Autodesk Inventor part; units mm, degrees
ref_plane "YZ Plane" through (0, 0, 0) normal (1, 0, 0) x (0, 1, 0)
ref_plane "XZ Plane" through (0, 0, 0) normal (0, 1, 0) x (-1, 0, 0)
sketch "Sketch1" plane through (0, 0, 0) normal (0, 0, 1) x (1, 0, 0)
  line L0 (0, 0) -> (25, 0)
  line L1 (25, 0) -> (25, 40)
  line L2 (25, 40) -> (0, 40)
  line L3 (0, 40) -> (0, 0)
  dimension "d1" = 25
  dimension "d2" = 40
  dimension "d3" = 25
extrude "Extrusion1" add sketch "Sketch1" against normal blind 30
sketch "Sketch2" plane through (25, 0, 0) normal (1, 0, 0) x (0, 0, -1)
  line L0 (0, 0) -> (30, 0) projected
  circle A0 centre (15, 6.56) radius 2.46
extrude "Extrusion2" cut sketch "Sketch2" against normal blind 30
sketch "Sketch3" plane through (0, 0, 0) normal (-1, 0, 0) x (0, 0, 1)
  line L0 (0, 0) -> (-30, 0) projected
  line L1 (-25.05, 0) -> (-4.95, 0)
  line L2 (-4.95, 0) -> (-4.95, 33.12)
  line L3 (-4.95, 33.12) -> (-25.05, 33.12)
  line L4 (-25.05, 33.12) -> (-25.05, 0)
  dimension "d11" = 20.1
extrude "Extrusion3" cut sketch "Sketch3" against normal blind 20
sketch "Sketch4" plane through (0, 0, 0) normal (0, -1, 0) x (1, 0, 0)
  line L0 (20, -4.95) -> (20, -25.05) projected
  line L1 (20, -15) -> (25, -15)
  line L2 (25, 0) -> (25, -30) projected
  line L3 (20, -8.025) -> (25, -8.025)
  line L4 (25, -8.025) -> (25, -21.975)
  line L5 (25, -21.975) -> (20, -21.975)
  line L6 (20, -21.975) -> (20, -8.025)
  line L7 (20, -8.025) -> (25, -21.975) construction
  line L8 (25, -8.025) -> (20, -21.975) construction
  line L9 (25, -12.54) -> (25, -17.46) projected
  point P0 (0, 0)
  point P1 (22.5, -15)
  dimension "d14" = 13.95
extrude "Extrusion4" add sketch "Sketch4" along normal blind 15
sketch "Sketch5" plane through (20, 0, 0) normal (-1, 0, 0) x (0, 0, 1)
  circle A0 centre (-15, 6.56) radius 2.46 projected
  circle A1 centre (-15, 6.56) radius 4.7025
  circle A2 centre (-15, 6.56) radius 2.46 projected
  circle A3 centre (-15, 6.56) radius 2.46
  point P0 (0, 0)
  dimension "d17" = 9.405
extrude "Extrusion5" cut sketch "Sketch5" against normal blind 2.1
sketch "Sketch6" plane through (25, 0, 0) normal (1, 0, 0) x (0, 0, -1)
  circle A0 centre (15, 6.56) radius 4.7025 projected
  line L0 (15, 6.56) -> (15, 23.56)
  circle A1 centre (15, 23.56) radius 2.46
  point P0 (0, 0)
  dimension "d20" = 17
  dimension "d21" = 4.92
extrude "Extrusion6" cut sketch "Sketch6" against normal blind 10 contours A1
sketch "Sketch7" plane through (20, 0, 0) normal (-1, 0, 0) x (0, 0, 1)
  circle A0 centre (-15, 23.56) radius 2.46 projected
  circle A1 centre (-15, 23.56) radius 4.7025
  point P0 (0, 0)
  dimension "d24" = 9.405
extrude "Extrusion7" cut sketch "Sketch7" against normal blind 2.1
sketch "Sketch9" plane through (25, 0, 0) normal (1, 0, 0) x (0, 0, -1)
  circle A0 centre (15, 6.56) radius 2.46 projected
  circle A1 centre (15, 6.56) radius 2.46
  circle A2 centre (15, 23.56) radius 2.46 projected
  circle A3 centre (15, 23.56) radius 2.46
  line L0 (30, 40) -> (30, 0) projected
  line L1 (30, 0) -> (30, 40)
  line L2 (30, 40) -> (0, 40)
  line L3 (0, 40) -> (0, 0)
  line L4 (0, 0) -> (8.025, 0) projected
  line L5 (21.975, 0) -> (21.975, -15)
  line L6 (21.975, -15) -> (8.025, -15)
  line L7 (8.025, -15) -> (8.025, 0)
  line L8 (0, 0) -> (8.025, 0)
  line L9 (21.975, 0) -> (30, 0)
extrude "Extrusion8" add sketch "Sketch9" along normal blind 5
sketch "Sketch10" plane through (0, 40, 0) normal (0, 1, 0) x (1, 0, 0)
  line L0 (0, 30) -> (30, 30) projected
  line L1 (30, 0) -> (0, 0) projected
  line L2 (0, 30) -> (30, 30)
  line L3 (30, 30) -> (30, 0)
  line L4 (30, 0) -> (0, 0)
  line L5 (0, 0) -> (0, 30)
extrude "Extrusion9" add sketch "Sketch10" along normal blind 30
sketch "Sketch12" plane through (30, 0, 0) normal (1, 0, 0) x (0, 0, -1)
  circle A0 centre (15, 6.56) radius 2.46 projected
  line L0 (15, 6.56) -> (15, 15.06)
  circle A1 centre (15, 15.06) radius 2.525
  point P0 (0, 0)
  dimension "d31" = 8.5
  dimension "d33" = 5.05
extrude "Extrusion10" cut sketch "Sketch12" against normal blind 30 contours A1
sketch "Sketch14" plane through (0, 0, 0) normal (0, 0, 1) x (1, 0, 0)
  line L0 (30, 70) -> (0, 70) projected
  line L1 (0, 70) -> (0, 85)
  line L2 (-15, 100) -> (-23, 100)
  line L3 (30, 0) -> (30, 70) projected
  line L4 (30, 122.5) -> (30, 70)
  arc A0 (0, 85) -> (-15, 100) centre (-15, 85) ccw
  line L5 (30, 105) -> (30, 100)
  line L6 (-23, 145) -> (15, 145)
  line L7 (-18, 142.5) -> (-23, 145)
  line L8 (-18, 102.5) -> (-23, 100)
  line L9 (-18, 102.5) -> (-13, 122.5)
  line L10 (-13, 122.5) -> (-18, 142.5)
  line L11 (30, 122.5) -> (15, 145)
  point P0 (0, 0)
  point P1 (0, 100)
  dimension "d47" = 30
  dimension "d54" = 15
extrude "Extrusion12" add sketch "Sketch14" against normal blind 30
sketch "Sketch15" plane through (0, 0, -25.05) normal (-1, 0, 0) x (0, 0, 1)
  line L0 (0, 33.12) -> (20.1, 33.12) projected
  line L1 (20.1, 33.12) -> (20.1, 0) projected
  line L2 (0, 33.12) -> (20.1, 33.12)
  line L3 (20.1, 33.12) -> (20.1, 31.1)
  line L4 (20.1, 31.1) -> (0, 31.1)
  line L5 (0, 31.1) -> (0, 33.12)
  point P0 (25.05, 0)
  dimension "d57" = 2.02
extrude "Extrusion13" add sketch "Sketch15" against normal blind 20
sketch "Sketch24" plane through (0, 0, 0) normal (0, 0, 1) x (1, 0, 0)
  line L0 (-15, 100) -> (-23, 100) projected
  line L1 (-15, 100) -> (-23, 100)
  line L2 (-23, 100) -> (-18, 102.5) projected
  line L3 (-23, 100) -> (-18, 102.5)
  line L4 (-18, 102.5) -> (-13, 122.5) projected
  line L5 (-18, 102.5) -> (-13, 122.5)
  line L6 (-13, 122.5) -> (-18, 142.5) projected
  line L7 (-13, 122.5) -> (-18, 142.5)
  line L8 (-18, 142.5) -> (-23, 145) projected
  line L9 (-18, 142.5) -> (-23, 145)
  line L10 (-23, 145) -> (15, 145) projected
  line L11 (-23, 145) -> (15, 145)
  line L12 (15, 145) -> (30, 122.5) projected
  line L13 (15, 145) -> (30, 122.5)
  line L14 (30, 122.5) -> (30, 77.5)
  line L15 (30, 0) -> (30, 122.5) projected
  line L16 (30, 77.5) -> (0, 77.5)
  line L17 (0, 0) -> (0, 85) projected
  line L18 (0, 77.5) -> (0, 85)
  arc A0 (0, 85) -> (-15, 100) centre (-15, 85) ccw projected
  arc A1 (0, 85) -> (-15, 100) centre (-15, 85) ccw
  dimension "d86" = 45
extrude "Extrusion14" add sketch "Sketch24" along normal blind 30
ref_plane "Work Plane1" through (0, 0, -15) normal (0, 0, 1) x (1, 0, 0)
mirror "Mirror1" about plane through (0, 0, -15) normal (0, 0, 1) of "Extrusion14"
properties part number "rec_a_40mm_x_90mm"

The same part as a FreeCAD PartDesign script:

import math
import FreeCAD as App
import Part
import Sketcher
from FreeCAD import Vector

doc = App.newDocument("Part")
body = doc.addObject("PartDesign::Body", "Body")

# Sketch on XY plane
sketch1 = body.newObject("Sketcher::SketchObject", "Sketch")
sketch1.AttachmentSupport = (doc.getObject("XY_Plane"), [""])
sketch1.MapMode = "FlatFace"
sketch1.addGeometry(Part.LineSegment(Vector(0, 40, 0), Vector(0, 0, 0)), False)
sketch1.addGeometry(Part.LineSegment(Vector(0, 0, 0), Vector(25, 0, 0)), False)
sketch1.addGeometry(Part.LineSegment(Vector(25, 0, 0), Vector(25, 40, 0)), False)
sketch1.addGeometry(Part.LineSegment(Vector(25, 40, 0), Vector(0, 40, 0)), False)
sketch1.addConstraint(Sketcher.Constraint("Coincident", 0, 2, 1, 1))
sketch1.addConstraint(Sketcher.Constraint("Coincident", 1, 2, 2, 1))
sketch1.addConstraint(Sketcher.Constraint("Coincident", 2, 2, 3, 1))
sketch1.addConstraint(Sketcher.Constraint("Coincident", 3, 2, 0, 1))
sketch1.addConstraint(Sketcher.Constraint("Vertical", 0))
sketch1.addConstraint(Sketcher.Constraint("Horizontal", 1))
sketch1.addConstraint(Sketcher.Constraint("Vertical", 2))
sketch1.addConstraint(Sketcher.Constraint("Horizontal", 3))
sketch1.addConstraint(Sketcher.Constraint("Coincident", 0, 2, -1, 1))
sketch1.addConstraint(Sketcher.Constraint("DistanceX", 1, 1, 1, 2, 25.0))
sketch1.addConstraint(Sketcher.Constraint("DistanceY", 0, 2, 0, 1, 40.0))
pad1 = body.newObject("PartDesign::Pad", "Pad")
pad1.Profile = sketch1
pad1.Length = 30
pad1.Reversed = True

# Sketch on YZ plane
sketch2 = body.newObject("Sketcher::SketchObject", "Sketch001")
sketch2.AttachmentSupport = (doc.getObject("YZ_Plane"), [""])
sketch2.MapMode = "FlatFace"
sketch2.AttachmentOffset = App.Placement(Vector(0, 0, 25), App.Rotation())
sketch2.addGeometry(Part.Circle(Vector(6.6, -15, 0), Vector(0, 0, 1), 2.5), False)
sketch2.addConstraint(Sketcher.Constraint("Diameter", 0, 4.92))
sketch2.addConstraint(Sketcher.Constraint("DistanceY", 0, 3, -1, 1, 15.0))
sketch2.addConstraint(Sketcher.Constraint("DistanceX", -1, 1, 0, 3, 6.56))
pocket1 = body.newObject("PartDesign::Pocket", "Pocket")
pocket1.Profile = sketch2
pocket1.Length = 30

# Sketch on YZ plane
sketch3 = body.newObject("Sketcher::SketchObject", "Sketch002")
sketch3.AttachmentSupport = (doc.getObject("YZ_Plane"), [""])
sketch3.MapMode = "FlatFace"
sketch3.addGeometry(Part.LineSegment(Vector(0, -25, 0), Vector(0, -5, 0)), False)
sketch3.addGeometry(Part.LineSegment(Vector(0, -5, 0), Vector(33, -5, 0)), False)
sketch3.addGeometry(Part.LineSegment(Vector(33, -5, 0), Vector(33, -25, 0)), False)
sketch3.addGeometry(Part.LineSegment(Vector(33, -25, 0), Vector(0, -25, 0)), False)
sketch3.addConstraint(Sketcher.Constraint("Coincident", 0, 2, 1, 1))
sketch3.addConstraint(Sketcher.Constraint("Coincident", 1, 2, 2, 1))
sketch3.addConstraint(Sketcher.Constraint("Coincident", 2, 2, 3, 1))
sketch3.addConstraint(Sketcher.Constraint("Coincident", 3, 2, 0, 1))
sketch3.addConstraint(Sketcher.Constraint("Vertical", 0))
sketch3.addConstraint(Sketcher.Constraint("Horizontal", 1))
sketch3.addConstraint(Sketcher.Constraint("Vertical", 2))
sketch3.addConstraint(Sketcher.Constraint("Horizontal", 3))
sketch3.addConstraint(Sketcher.Constraint("PointOnObject", 0, 2, -2))
sketch3.addConstraint(Sketcher.Constraint("DistanceY", 0, 1, 0, 2, 20.1))
sketch3.addConstraint(Sketcher.Constraint("DistanceX", 1, 1, 1, 2, 33.12))
sketch3.addConstraint(Sketcher.Constraint("DistanceY", 0, 2, -1, 1, 4.95))
pocket2 = body.newObject("PartDesign::Pocket", "Pocket001")
pocket2.Profile = sketch3
pocket2.Length = 20
pocket2.Reversed = True

# Sketch on XZ plane
sketch4 = body.newObject("Sketcher::SketchObject", "Sketch003")
sketch4.AttachmentSupport = (doc.getObject("XZ_Plane"), [""])
sketch4.MapMode = "FlatFace"
sketch4.addGeometry(Part.LineSegment(Vector(25, -8, 0), Vector(20, -8, 0)), False)
sketch4.addGeometry(Part.LineSegment(Vector(20, -8, 0), Vector(20, -22, 0)), False)
sketch4.addGeometry(Part.LineSegment(Vector(20, -22, 0), Vector(25, -22, 0)), False)
sketch4.addGeometry(Part.LineSegment(Vector(25, -22, 0), Vector(25, -8, 0)), False)
sketch4.addConstraint(Sketcher.Constraint("Coincident", 0, 2, 1, 1))
sketch4.addConstraint(Sketcher.Constraint("Coincident", 1, 2, 2, 1))
sketch4.addConstraint(Sketcher.Constraint("Coincident", 2, 2, 3, 1))
sketch4.addConstraint(Sketcher.Constraint("Coincident", 3, 2, 0, 1))
sketch4.addConstraint(Sketcher.Constraint("Horizontal", 0))
sketch4.addConstraint(Sketcher.Constraint("Vertical", 1))
sketch4.addConstraint(Sketcher.Constraint("Horizontal", 2))
sketch4.addConstraint(Sketcher.Constraint("Vertical", 3))
sketch4.addConstraint(Sketcher.Constraint("DistanceY", 1, 2, 1, 1, 13.95))
sketch4.addConstraint(Sketcher.Constraint("DistanceX", 0, 2, 0, 1, 5.0))
sketch4.addConstraint(Sketcher.Constraint("DistanceX", -1, 1, 0, 2, 20.0))
sketch4.addConstraint(Sketcher.Constraint("DistanceY", 0, 2, -1, 1, 8.025))
pad2 = body.newObject("PartDesign::Pad", "Pad001")
pad2.Profile = sketch4
pad2.Length = 15

# Sketch on YZ plane
sketch5 = body.newObject("Sketcher::SketchObject", "Sketch004")
sketch5.AttachmentSupport = (doc.getObject("YZ_Plane"), [""])
sketch5.MapMode = "FlatFace"
sketch5.AttachmentOffset = App.Placement(Vector(0, 0, 20), App.Rotation())
sketch5.addGeometry(Part.Circle(Vector(6.6, -15, 0), Vector(0, 0, 1), 4.7), False)
sketch5.addGeometry(Part.Circle(Vector(6.6, -15, 0), Vector(0, 0, 1), 2.5), False)
sketch5.addConstraint(Sketcher.Constraint("Coincident", 1, 3, 0, 3))
sketch5.addConstraint(Sketcher.Constraint("Diameter", 0, 9.405))
sketch5.addConstraint(Sketcher.Constraint("Diameter", 1, 4.92))
sketch5.addConstraint(Sketcher.Constraint("DistanceY", 0, 3, -1, 1, 15.0))
sketch5.addConstraint(Sketcher.Constraint("DistanceX", -1, 1, 0, 3, 6.56))
pocket3 = body.newObject("PartDesign::Pocket", "Pocket002")
pocket3.Profile = sketch5
pocket3.Length = 2.1
pocket3.Reversed = True

# Sketch on YZ plane
sketch6 = body.newObject("Sketcher::SketchObject", "Sketch005")
sketch6.AttachmentSupport = (doc.getObject("YZ_Plane"), [""])
sketch6.MapMode = "FlatFace"
sketch6.AttachmentOffset = App.Placement(Vector(0, 0, 25), App.Rotation())
sketch6.addGeometry(Part.Circle(Vector(23.6, -15, 0), Vector(0, 0, 1), 2.5), False)
sketch6.addConstraint(Sketcher.Constraint("Diameter", 0, 4.92))
sketch6.addConstraint(Sketcher.Constraint("DistanceY", 0, 3, -1, 1, 15.0))
sketch6.addConstraint(Sketcher.Constraint("DistanceX", -1, 1, 0, 3, 23.56))
pocket4 = body.newObject("PartDesign::Pocket", "Pocket003")
pocket4.Profile = sketch6
pocket4.Length = 10

# Sketch on YZ plane
sketch7 = body.newObject("Sketcher::SketchObject", "Sketch006")
sketch7.AttachmentSupport = (doc.getObject("YZ_Plane"), [""])
sketch7.MapMode = "FlatFace"
sketch7.AttachmentOffset = App.Placement(Vector(0, 0, 20), App.Rotation())
sketch7.addGeometry(Part.Circle(Vector(23.6, -15, 0), Vector(0, 0, 1), 4.7), False)
sketch7.addGeometry(Part.Circle(Vector(23.6, -15, 0), Vector(0, 0, 1), 2.5), False)
sketch7.addConstraint(Sketcher.Constraint("Coincident", 1, 3, 0, 3))
sketch7.addConstraint(Sketcher.Constraint("Diameter", 0, 9.405))
sketch7.addConstraint(Sketcher.Constraint("Diameter", 1, 4.92))
sketch7.addConstraint(Sketcher.Constraint("DistanceY", 0, 3, -1, 1, 15.0))
sketch7.addConstraint(Sketcher.Constraint("DistanceX", -1, 1, 0, 3, 23.56))
pocket5 = body.newObject("PartDesign::Pocket", "Pocket004")
pocket5.Profile = sketch7
pocket5.Length = 2.1
pocket5.Reversed = True

# Sketch on YZ plane
sketch8 = body.newObject("Sketcher::SketchObject", "Sketch007")
sketch8.AttachmentSupport = (doc.getObject("YZ_Plane"), [""])
sketch8.MapMode = "FlatFace"
sketch8.AttachmentOffset = App.Placement(Vector(0, 0, 25), App.Rotation())
sketch8.addGeometry(Part.LineSegment(Vector(0, -30, 0), Vector(40, -30, 0)), False)
sketch8.addGeometry(Part.LineSegment(Vector(40, -30, 0), Vector(40, 0, 0)), False)
sketch8.addGeometry(Part.LineSegment(Vector(40, 0, 0), Vector(0, 0, 0)), False)
sketch8.addGeometry(Part.LineSegment(Vector(0, 0, 0), Vector(0, -8, 0)), False)
sketch8.addGeometry(Part.LineSegment(Vector(0, -8, 0), Vector(-15, -8, 0)), False)
sketch8.addGeometry(Part.LineSegment(Vector(-15, -8, 0), Vector(-15, -22, 0)), False)
sketch8.addGeometry(Part.LineSegment(Vector(-15, -22, 0), Vector(0, -22, 0)), False)
sketch8.addGeometry(Part.LineSegment(Vector(0, -22, 0), Vector(0, -30, 0)), False)
sketch8.addGeometry(Part.Circle(Vector(6.6, -15, 0), Vector(0, 0, 1), 2.5), False)
sketch8.addGeometry(Part.Circle(Vector(23.6, -15, 0), Vector(0, 0, 1), 2.5), False)
sketch8.addConstraint(Sketcher.Constraint("Coincident", 0, 2, 1, 1))
sketch8.addConstraint(Sketcher.Constraint("Coincident", 1, 2, 2, 1))
sketch8.addConstraint(Sketcher.Constraint("Coincident", 2, 2, 3, 1))
sketch8.addConstraint(Sketcher.Constraint("Coincident", 3, 2, 4, 1))
sketch8.addConstraint(Sketcher.Constraint("Coincident", 4, 2, 5, 1))
sketch8.addConstraint(Sketcher.Constraint("Coincident", 5, 2, 6, 1))
sketch8.addConstraint(Sketcher.Constraint("Coincident", 6, 2, 7, 1))
sketch8.addConstraint(Sketcher.Constraint("Coincident", 7, 2, 0, 1))
sketch8.addConstraint(Sketcher.Constraint("Horizontal", 0))
sketch8.addConstraint(Sketcher.Constraint("Vertical", 1))
sketch8.addConstraint(Sketcher.Constraint("Horizontal", 2))
sketch8.addConstraint(Sketcher.Constraint("Vertical", 3))
sketch8.addConstraint(Sketcher.Constraint("Horizontal", 4))
sketch8.addConstraint(Sketcher.Constraint("Vertical", 5))
sketch8.addConstraint(Sketcher.Constraint("Horizontal", 6))
sketch8.addConstraint(Sketcher.Constraint("Vertical", 7))
sketch8.addConstraint(Sketcher.Constraint("Coincident", 2, 2, -1, 1))
sketch8.addConstraint(Sketcher.Constraint("Equal", 8, 9))
sketch8.addConstraint(Sketcher.Constraint("PointOnObject", 6, 2, -2))
sketch8.addConstraint(Sketcher.Constraint("Horizontal", 8, 3, 9, 3))
sketch8.addConstraint(Sketcher.Constraint("Equal", 3, 7))
sketch8.addConstraint(Sketcher.Constraint("Diameter", 8, 4.92))
sketch8.addConstraint(Sketcher.Constraint("DistanceX", 0, 1, 0, 2, 40.0))
sketch8.addConstraint(Sketcher.Constraint("DistanceX", 4, 2, 4, 1, 15.0))
sketch8.addConstraint(Sketcher.Constraint("DistanceY", 1, 1, 1, 2, 30.0))
sketch8.addConstraint(Sketcher.Constraint("DistanceY", 8, 3, -1, 1, 15.0))
sketch8.addConstraint(Sketcher.Constraint("DistanceX", 8, 3, 9, 3, 17.0))
sketch8.addConstraint(Sketcher.Constraint("DistanceY", 5, 2, 5, 1, 13.95))
sketch8.addConstraint(Sketcher.Constraint("DistanceX", -1, 1, 8, 3, 6.56))
pad3 = body.newObject("PartDesign::Pad", "Pad002")
pad3.Profile = sketch8
pad3.Length = 5

# Sketch on XZ plane
sketch9 = body.newObject("Sketcher::SketchObject", "Sketch008")
sketch9.AttachmentSupport = (doc.getObject("XZ_Plane"), [""])
sketch9.MapMode = "FlatFace"
sketch9.AttachmentOffset = App.Placement(Vector(0, 0, -40), App.Rotation())
sketch9.addGeometry(Part.LineSegment(Vector(30, -30, 0), Vector(0, -30, 0)), False)
sketch9.addGeometry(Part.LineSegment(Vector(0, -30, 0), Vector(0, 0, 0)), False)
sketch9.addGeometry(Part.LineSegment(Vector(0, 0, 0), Vector(30, 0, 0)), False)
sketch9.addGeometry(Part.LineSegment(Vector(30, 0, 0), Vector(30, -30, 0)), False)
sketch9.addConstraint(Sketcher.Constraint("Coincident", 0, 2, 1, 1))
sketch9.addConstraint(Sketcher.Constraint("Coincident", 1, 2, 2, 1))
sketch9.addConstraint(Sketcher.Constraint("Coincident", 2, 2, 3, 1))
sketch9.addConstraint(Sketcher.Constraint("Coincident", 3, 2, 0, 1))
sketch9.addConstraint(Sketcher.Constraint("Horizontal", 0))
sketch9.addConstraint(Sketcher.Constraint("Vertical", 1))
sketch9.addConstraint(Sketcher.Constraint("Horizontal", 2))
sketch9.addConstraint(Sketcher.Constraint("Vertical", 3))
sketch9.addConstraint(Sketcher.Constraint("Coincident", 1, 2, -1, 1))
sketch9.addConstraint(Sketcher.Constraint("Equal", 2, 1))
sketch9.addConstraint(Sketcher.Constraint("DistanceX", 0, 2, 0, 1, 30.0))
pad4 = body.newObject("PartDesign::Pad", "Pad003")
pad4.Profile = sketch9
pad4.Length = 30
pad4.Reversed = True

# Sketch on YZ plane
sketch10 = body.newObject("Sketcher::SketchObject", "Sketch009")
sketch10.AttachmentSupport = (doc.getObject("YZ_Plane"), [""])
sketch10.MapMode = "FlatFace"
sketch10.AttachmentOffset = App.Placement(Vector(0, 0, 30), App.Rotation())
sketch10.addGeometry(Part.Circle(Vector(15.1, -15, 0), Vector(0, 0, 1), 2.5), False)
sketch10.addConstraint(Sketcher.Constraint("Diameter", 0, 5.05))
sketch10.addConstraint(Sketcher.Constraint("DistanceY", 0, 3, -1, 1, 15.0))
sketch10.addConstraint(Sketcher.Constraint("DistanceX", -1, 1, 0, 3, 15.06))
pocket6 = body.newObject("PartDesign::Pocket", "Pocket005")
pocket6.Profile = sketch10
pocket6.Length = 30

# Sketch on XY plane
sketch11 = body.newObject("Sketcher::SketchObject", "Sketch010")
sketch11.AttachmentSupport = (doc.getObject("XY_Plane"), [""])
sketch11.MapMode = "FlatFace"
sketch11.addGeometry(Part.LineSegment(Vector(0, 70, 0), Vector(30, 70, 0)), False)
sketch11.addGeometry(Part.LineSegment(Vector(30, 70, 0), Vector(30, 122, 0)), False)
sketch11.addGeometry(Part.LineSegment(Vector(30, 122, 0), Vector(15, 145, 0)), False)
sketch11.addGeometry(Part.LineSegment(Vector(15, 145, 0), Vector(-23, 145, 0)), False)
sketch11.addGeometry(Part.LineSegment(Vector(-23, 145, 0), Vector(-18, 142, 0)), False)
sketch11.addGeometry(Part.LineSegment(Vector(-18, 142, 0), Vector(-13, 122, 0)), False)
sketch11.addGeometry(Part.LineSegment(Vector(-13, 122, 0), Vector(-18, 102, 0)), False)
sketch11.addGeometry(Part.LineSegment(Vector(-18, 102, 0), Vector(-23, 100, 0)), False)
sketch11.addGeometry(Part.LineSegment(Vector(-23, 100, 0), Vector(-15, 100, 0)), False)
sketch11.addGeometry(Part.ArcOfCircle(Part.Circle(Vector(-15, 85, 0), Vector(0, 0, 1), 15), math.radians(0), math.radians(90)), False)
sketch11.addGeometry(Part.LineSegment(Vector(0, 85, 0), Vector(0, 70, 0)), False)
sketch11.addConstraint(Sketcher.Constraint("Coincident", 0, 2, 1, 1))
sketch11.addConstraint(Sketcher.Constraint("Coincident", 1, 2, 2, 1))
sketch11.addConstraint(Sketcher.Constraint("Coincident", 2, 2, 3, 1))
sketch11.addConstraint(Sketcher.Constraint("Coincident", 3, 2, 4, 1))
sketch11.addConstraint(Sketcher.Constraint("Coincident", 4, 2, 5, 1))
sketch11.addConstraint(Sketcher.Constraint("Coincident", 5, 2, 6, 1))
sketch11.addConstraint(Sketcher.Constraint("Coincident", 6, 2, 7, 1))
sketch11.addConstraint(Sketcher.Constraint("Coincident", 7, 2, 8, 1))
sketch11.addConstraint(Sketcher.Constraint("Tangent", 8, 2, 9, 2))
sketch11.addConstraint(Sketcher.Constraint("Tangent", 9, 1, 10, 1))
sketch11.addConstraint(Sketcher.Constraint("Coincident", 10, 2, 0, 1))
sketch11.addConstraint(Sketcher.Constraint("Horizontal", 0))
sketch11.addConstraint(Sketcher.Constraint("Vertical", 1))
sketch11.addConstraint(Sketcher.Constraint("Horizontal", 3))
sketch11.addConstraint(Sketcher.Constraint("Horizontal", 8))
sketch11.addConstraint(Sketcher.Constraint("Vertical", 10))
sketch11.addConstraint(Sketcher.Constraint("PointOnObject", 9, 1, -2))
sketch11.addConstraint(Sketcher.Constraint("Horizontal", 1, 2, 5, 2))
sketch11.addConstraint(Sketcher.Constraint("Vertical", 4, 2, 6, 2))
sketch11.addConstraint(Sketcher.Constraint("Vertical", 3, 2, 7, 2))
sketch11.addConstraint(Sketcher.Constraint("Equal", 5, 6))
sketch11.addConstraint(Sketcher.Constraint("Equal", 4, 7))
sketch11.addConstraint(Sketcher.Constraint("Radius", 9, 15.0))
sketch11.addConstraint(Sketcher.Constraint("DistanceX", 0, 1, 0, 2, 30.0))
sketch11.addConstraint(Sketcher.Constraint("DistanceY", 10, 2, 10, 1, 15.0))
sketch11.addConstraint(Sketcher.Constraint("DistanceX", -1, 1, 2, 2, 15.0))
sketch11.addConstraint(Sketcher.Constraint("DistanceX", 3, 2, 3, 1, 38.0))
sketch11.addConstraint(Sketcher.Constraint("DistanceY", 1, 1, 1, 2, 52.5))
sketch11.addConstraint(Sketcher.Constraint("DistanceY", -1, 1, 9, 3, 85.0))
sketch11.addConstraint(Sketcher.Constraint("DistanceX", 4, 2, -1, 1, 18.0))
sketch11.addConstraint(Sketcher.Constraint("DistanceX", 5, 2, -1, 1, 13.0))
sketch11.addConstraint(Sketcher.Constraint("DistanceY", 1, 2, 4, 2, 20.0))
pad5 = body.newObject("PartDesign::Pad", "Pad004")
pad5.Profile = sketch11
pad5.Length = 30
pad5.Reversed = True

# Sketch on YZ plane
sketch12 = body.newObject("Sketcher::SketchObject", "Sketch011")
sketch12.AttachmentSupport = (doc.getObject("YZ_Plane"), [""])
sketch12.MapMode = "FlatFace"
sketch12.addGeometry(Part.LineSegment(Vector(33.1, -5, 0), Vector(33.1, -25.1, 0)), False)
sketch12.addGeometry(Part.LineSegment(Vector(33.1, -25.1, 0), Vector(31.1, -25.1, 0)), False)
sketch12.addGeometry(Part.LineSegment(Vector(31.1, -25.1, 0), Vector(31.1, -5, 0)), False)
sketch12.addGeometry(Part.LineSegment(Vector(31.1, -5, 0), Vector(33.1, -5, 0)), False)
sketch12.addConstraint(Sketcher.Constraint("Coincident", 0, 2, 1, 1))
sketch12.addConstraint(Sketcher.Constraint("Coincident", 1, 2, 2, 1))
sketch12.addConstraint(Sketcher.Constraint("Coincident", 2, 2, 3, 1))
sketch12.addConstraint(Sketcher.Constraint("Coincident", 3, 2, 0, 1))
sketch12.addConstraint(Sketcher.Constraint("Vertical", 0))
sketch12.addConstraint(Sketcher.Constraint("Horizontal", 1))
sketch12.addConstraint(Sketcher.Constraint("Vertical", 2))
sketch12.addConstraint(Sketcher.Constraint("Horizontal", 3))
sketch12.addConstraint(Sketcher.Constraint("DistanceX", 1, 2, 1, 1, 2.02))
sketch12.addConstraint(Sketcher.Constraint("DistanceY", 0, 2, 0, 1, 20.1))
sketch12.addConstraint(Sketcher.Constraint("DistanceX", -1, 1, 1, 2, 31.1))
sketch12.addConstraint(Sketcher.Constraint("DistanceY", 0, 2, -1, 1, 25.05))
pad6 = body.newObject("PartDesign::Pad", "Pad005")
pad6.Profile = sketch12
pad6.Length = 20

# Sketch on XY plane
sketch13 = body.newObject("Sketcher::SketchObject", "Sketch012")
sketch13.AttachmentSupport = (doc.getObject("XY_Plane"), [""])
sketch13.MapMode = "FlatFace"
sketch13.addGeometry(Part.LineSegment(Vector(-23, 100, 0), Vector(-15, 100, 0)), False)
sketch13.addGeometry(Part.ArcOfCircle(Part.Circle(Vector(-15, 85, 0), Vector(0, 0, 1), 15), math.radians(0), math.radians(90)), False)
sketch13.addGeometry(Part.LineSegment(Vector(0, 85, 0), Vector(0, 78, 0)), False)
sketch13.addGeometry(Part.LineSegment(Vector(0, 78, 0), Vector(30, 78, 0)), False)
sketch13.addGeometry(Part.LineSegment(Vector(30, 78, 0), Vector(30, 122, 0)), False)
sketch13.addGeometry(Part.LineSegment(Vector(30, 122, 0), Vector(15, 145, 0)), False)
sketch13.addGeometry(Part.LineSegment(Vector(15, 145, 0), Vector(-23, 145, 0)), False)
sketch13.addGeometry(Part.LineSegment(Vector(-23, 145, 0), Vector(-18, 142, 0)), False)
sketch13.addGeometry(Part.LineSegment(Vector(-18, 142, 0), Vector(-13, 122, 0)), False)
sketch13.addGeometry(Part.LineSegment(Vector(-13, 122, 0), Vector(-18, 102, 0)), False)
sketch13.addGeometry(Part.LineSegment(Vector(-18, 102, 0), Vector(-23, 100, 0)), False)
sketch13.addConstraint(Sketcher.Constraint("Tangent", 0, 2, 1, 2))
sketch13.addConstraint(Sketcher.Constraint("Tangent", 1, 1, 2, 1))
sketch13.addConstraint(Sketcher.Constraint("Coincident", 2, 2, 3, 1))
sketch13.addConstraint(Sketcher.Constraint("Coincident", 3, 2, 4, 1))
sketch13.addConstraint(Sketcher.Constraint("Coincident", 4, 2, 5, 1))
sketch13.addConstraint(Sketcher.Constraint("Coincident", 5, 2, 6, 1))
sketch13.addConstraint(Sketcher.Constraint("Coincident", 6, 2, 7, 1))
sketch13.addConstraint(Sketcher.Constraint("Coincident", 7, 2, 8, 1))
sketch13.addConstraint(Sketcher.Constraint("Coincident", 8, 2, 9, 1))
sketch13.addConstraint(Sketcher.Constraint("Coincident", 9, 2, 10, 1))
sketch13.addConstraint(Sketcher.Constraint("Coincident", 10, 2, 0, 1))
sketch13.addConstraint(Sketcher.Constraint("Horizontal", 0))
sketch13.addConstraint(Sketcher.Constraint("Vertical", 2))
sketch13.addConstraint(Sketcher.Constraint("Horizontal", 3))
sketch13.addConstraint(Sketcher.Constraint("Vertical", 4))
sketch13.addConstraint(Sketcher.Constraint("Horizontal", 6))
sketch13.addConstraint(Sketcher.Constraint("PointOnObject", 1, 1, -2))
sketch13.addConstraint(Sketcher.Constraint("Horizontal", 4, 2, 8, 2))
sketch13.addConstraint(Sketcher.Constraint("Vertical", 7, 2, 9, 2))
sketch13.addConstraint(Sketcher.Constraint("Vertical", 6, 2, 10, 2))
sketch13.addConstraint(Sketcher.Constraint("Equal", 8, 9))
sketch13.addConstraint(Sketcher.Constraint("Equal", 7, 10))
sketch13.addConstraint(Sketcher.Constraint("DistanceY", 4, 1, 4, 2, 45.0))
sketch13.addConstraint(Sketcher.Constraint("Radius", 1, 15.0))
sketch13.addConstraint(Sketcher.Constraint("DistanceX", 1, 3, 3, 2, 45.0))
sketch13.addConstraint(Sketcher.Constraint("DistanceY", 0, 2, 5, 2, 45.0))
sketch13.addConstraint(Sketcher.Constraint("DistanceX", 0, 1, 0, 2, 8.0))
sketch13.addConstraint(Sketcher.Constraint("DistanceX", 6, 2, 6, 1, 38.0))
sketch13.addConstraint(Sketcher.Constraint("DistanceY", -1, 1, 1, 3, 85.0))
sketch13.addConstraint(Sketcher.Constraint("DistanceX", 7, 2, -1, 1, 18.0))
sketch13.addConstraint(Sketcher.Constraint("DistanceX", 8, 2, -1, 1, 13.0))
sketch13.addConstraint(Sketcher.Constraint("DistanceY", 4, 2, 7, 2, 20.0))
pad7 = body.newObject("PartDesign::Pad", "Pad006")
pad7.Profile = sketch13
pad7.Length = 30
doc.recompute()

datumplane = body.newObject("PartDesign::Plane", "DatumPlane")
datumplane.AttachmentSupport = (doc.getObject("XY_Plane"), [""])
datumplane.MapMode = "FlatFace"
datumplane.AttachmentOffset = App.Placement(Vector(0, 0, -15), App.Rotation())
mirrored = body.newObject("PartDesign::Mirrored", "Mirrored")
mirrored.Originals = [pad7]
mirrored.MirrorPlane = (datumplane, [""])
body.Tip = mirrored

doc.recompute()
